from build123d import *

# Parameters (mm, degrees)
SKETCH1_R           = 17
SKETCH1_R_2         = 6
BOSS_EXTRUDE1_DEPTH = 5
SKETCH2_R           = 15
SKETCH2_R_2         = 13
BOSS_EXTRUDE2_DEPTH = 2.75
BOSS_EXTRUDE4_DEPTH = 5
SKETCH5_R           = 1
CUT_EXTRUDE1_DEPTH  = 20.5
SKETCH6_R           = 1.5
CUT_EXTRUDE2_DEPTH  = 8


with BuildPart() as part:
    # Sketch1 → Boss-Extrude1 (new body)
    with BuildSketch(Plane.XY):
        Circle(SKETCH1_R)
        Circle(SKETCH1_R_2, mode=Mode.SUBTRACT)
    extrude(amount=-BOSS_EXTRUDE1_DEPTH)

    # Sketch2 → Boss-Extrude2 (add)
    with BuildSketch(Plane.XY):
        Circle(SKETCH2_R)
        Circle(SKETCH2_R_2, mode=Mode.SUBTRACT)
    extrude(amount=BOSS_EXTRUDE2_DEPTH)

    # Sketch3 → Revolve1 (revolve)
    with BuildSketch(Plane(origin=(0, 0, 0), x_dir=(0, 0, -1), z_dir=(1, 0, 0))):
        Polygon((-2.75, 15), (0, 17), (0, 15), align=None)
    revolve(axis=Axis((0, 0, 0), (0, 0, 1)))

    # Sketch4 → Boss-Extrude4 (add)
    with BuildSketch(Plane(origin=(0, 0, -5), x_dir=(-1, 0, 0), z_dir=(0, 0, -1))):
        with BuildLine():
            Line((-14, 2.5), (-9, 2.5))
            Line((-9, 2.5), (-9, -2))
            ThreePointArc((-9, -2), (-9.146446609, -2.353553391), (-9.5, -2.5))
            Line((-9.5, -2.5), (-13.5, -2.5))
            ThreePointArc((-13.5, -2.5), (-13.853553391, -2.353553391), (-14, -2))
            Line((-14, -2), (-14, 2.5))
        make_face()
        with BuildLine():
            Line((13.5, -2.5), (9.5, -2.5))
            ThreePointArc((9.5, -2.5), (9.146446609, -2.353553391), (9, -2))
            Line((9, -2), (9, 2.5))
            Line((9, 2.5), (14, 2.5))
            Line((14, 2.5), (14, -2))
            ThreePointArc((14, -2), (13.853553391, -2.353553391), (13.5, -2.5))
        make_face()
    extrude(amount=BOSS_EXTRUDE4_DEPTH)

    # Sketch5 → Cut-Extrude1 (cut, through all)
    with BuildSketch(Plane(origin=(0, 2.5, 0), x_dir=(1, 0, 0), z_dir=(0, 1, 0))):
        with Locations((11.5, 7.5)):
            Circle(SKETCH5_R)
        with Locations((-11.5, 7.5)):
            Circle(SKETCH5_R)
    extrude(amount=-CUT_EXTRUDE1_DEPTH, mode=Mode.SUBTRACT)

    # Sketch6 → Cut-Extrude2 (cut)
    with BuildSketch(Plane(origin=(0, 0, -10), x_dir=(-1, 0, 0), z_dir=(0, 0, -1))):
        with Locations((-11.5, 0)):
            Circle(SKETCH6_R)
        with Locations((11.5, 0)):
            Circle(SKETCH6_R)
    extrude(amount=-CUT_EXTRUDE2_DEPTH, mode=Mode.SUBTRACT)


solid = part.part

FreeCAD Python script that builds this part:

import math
import FreeCAD as App
import Part
import Sketcher

V = App.Vector
Q = App.Units.Quantity

doc = App.newDocument("Part")
params = doc.addObject("Spreadsheet::Sheet", "Params")
for row, (alias, value) in enumerate([
    ("sketch1_diameter", "34 mm"),
    ("sketch1_diameter2", "12 mm"),
    ("pad1_length", "5 mm"),
    ("sketch2_diameter", "30 mm"),
    ("sketch2_diameter2", "26 mm"),
    ("pad2_length", "2.75 mm"),
    ("sketch3_width", "2 mm"),
    ("sketch3_height", "2.75 mm"),
    ("revolution_angle", "360 deg"),
    ("sketch4_radius", "0.5 mm"),
    ("sketch4_width", "5 mm"),
    ("sketch4_height", "4.5 mm"),
    ("pad3_length", "5 mm"),
    ("sketch5_diameter", "2 mm"),
    ("sketch6_diameter", "3 mm"),
    ("pocket2_length", "8 mm"),
], start=1):
    params.set(f"A{row}", alias)
    params.set(f"B{row}", "=" + value)
    params.setAlias(f"B{row}", alias)

body = doc.addObject("PartDesign::Body", "Body")

sketch1 = doc.addObject("Sketcher::SketchObject", "Sketch")
body.addObject(sketch1)
sketch1.AttachmentSupport = (doc.XY_Plane, [""])
sketch1.MapMode = "FlatFace"
sketch1.addGeometry(Part.Circle(V(0, 0, 0), V(0, 0, 1), 17), False)
sketch1.addGeometry(Part.Circle(V(0, 0, 0), V(0, 0, 1), 6), False)
sketch1.addConstraint(Sketcher.Constraint("Coincident", 0, 3, -1, 1))
sketch1.addConstraint(Sketcher.Constraint("Coincident", 1, 3, -1, 1))
sketch1.addConstraint(Sketcher.Constraint("Diameter", 0, Q("34 mm")))
sketch1.addConstraint(Sketcher.Constraint("Diameter", 1, Q("12 mm")))
sketch1.setExpression("Constraints[2]", "Params.sketch1_diameter")
sketch1.setExpression("Constraints[3]", "Params.sketch1_diameter2")
pad1 = doc.addObject("PartDesign::Pad", "Pad")
body.addObject(pad1)
pad1.Profile = sketch1
pad1.setExpression("Length", "Params.pad1_length")
pad1.Reversed = True

sketch2 = doc.addObject("Sketcher::SketchObject", "Sketch001")
body.addObject(sketch2)
sketch2.AttachmentSupport = (doc.XY_Plane, [""])
sketch2.MapMode = "FlatFace"
sketch2.addGeometry(Part.Circle(V(0, 0, 0), V(0, 0, 1), 15), False)
sketch2.addGeometry(Part.Circle(V(0, 0, 0), V(0, 0, 1), 13), False)
sketch2.addConstraint(Sketcher.Constraint("Coincident", 0, 3, -1, 1))
sketch2.addConstraint(Sketcher.Constraint("Coincident", 1, 3, -1, 1))
sketch2.addConstraint(Sketcher.Constraint("Diameter", 0, Q("30 mm")))
sketch2.addConstraint(Sketcher.Constraint("Diameter", 1, Q("26 mm")))
sketch2.setExpression("Constraints[2]", "Params.sketch2_diameter")
sketch2.setExpression("Constraints[3]", "Params.sketch2_diameter2")
pad2 = doc.addObject("PartDesign::Pad", "Pad001")
body.addObject(pad2)
pad2.Profile = sketch2
pad2.setExpression("Length", "Params.pad2_length")

sketch3 = doc.addObject("Sketcher::SketchObject", "Sketch002")
body.addObject(sketch3)
sketch3.AttachmentSupport = (doc.YZ_Plane, [""])
sketch3.MapMode = "FlatFace"
sketch3.addGeometry(Part.LineSegment(V(17, 0, 0), V(15, 2.8, 0)), False)
sketch3.addGeometry(Part.LineSegment(V(15, 2.8, 0), V(15, 0, 0)), False)
sketch3.addGeometry(Part.LineSegment(V(15, 0, 0), V(17, 0, 0)), False)
sketch3.addConstraint(Sketcher.Constraint("Coincident", 0, 2, 1, 1))
sketch3.addConstraint(Sketcher.Constraint("Coincident", 1, 2, 2, 1))
sketch3.addConstraint(Sketcher.Constraint("Coincident", 2, 2, 0, 1))
sketch3.addConstraint(Sketcher.Constraint("Vertical", 1))
sketch3.addConstraint(Sketcher.Constraint("Horizontal", 2))
sketch3.addConstraint(Sketcher.Constraint("PointOnObject", 1, 2, -1))
sketch3.addConstraint(Sketcher.Constraint("DistanceX", 2, 1, 2, 2, Q("2 mm")))
sketch3.addConstraint(Sketcher.Constraint("DistanceX", -1, 1, 0, 2, Q("15 mm")))
sketch3.addConstraint(Sketcher.Constraint("DistanceY", 1, 2, 1, 1, Q("2.75 mm")))
sketch3.setExpression("Constraints[6]", "Params.sketch3_width")
sketch3.setExpression("Constraints[8]", "Params.sketch3_height")
revolution = doc.addObject("PartDesign::Revolution", "Revolution")
body.addObject(revolution)
revolution.Profile = sketch3
revolution.ReferenceAxis = (sketch3, ["V_Axis"])
revolution.setExpression("Angle", "Params.revolution_angle")

sketch4 = doc.addObject("Sketcher::SketchObject", "Sketch003")
body.addObject(sketch4)
sketch4.AttachmentSupport = (doc.XY_Plane, [""])
sketch4.MapMode = "FlatFace"
sketch4.AttachmentOffset = App.Placement(V(0, 0, -5), App.Rotation())
sketch4.addGeometry(Part.LineSegment(V(9, 2.5, 0), V(14, 2.5, 0)), False)
sketch4.addGeometry(Part.LineSegment(V(14, 2.5, 0), V(14, -2, 0)), False)
sketch4.addGeometry(Part.ArcOfCircle(Part.Circle(V(13.5, -2, 0), V(0, 0, 1), 0.5), math.radians(-90), math.radians(0)), False)
sketch4.addGeometry(Part.LineSegment(V(13.5, -2.5, 0), V(9.5, -2.5, 0)), False)
sketch4.addGeometry(Part.ArcOfCircle(Part.Circle(V(9.5, -2, 0), V(0, 0, 1), 0.5), math.radians(180), math.radians(270)), False)
sketch4.addGeometry(Part.LineSegment(V(9, -2, 0), V(9, 2.5, 0)), False)
sketch4.addGeometry(Part.LineSegment(V(-9.5, -2.5, 0), V(-13.5, -2.5, 0)), False)
sketch4.addGeometry(Part.ArcOfCircle(Part.Circle(V(-13.5, -2, 0), V(0, 0, 1), 0.5), math.radians(180), math.radians(270)), False)
sketch4.addGeometry(Part.LineSegment(V(-14, -2, 0), V(-14, 2.5, 0)), False)
sketch4.addGeometry(Part.LineSegment(V(-14, 2.5, 0), V(-9, 2.5, 0)), False)
sketch4.addGeometry(Part.LineSegment(V(-9, 2.5, 0), V(-9, -2, 0)), False)
sketch4.addGeometry(Part.ArcOfCircle(Part.Circle(V(-9.5, -2, 0), V(0, 0, 1), 0.5), math.radians(-90), math.radians(0)), False)
sketch4.addConstraint(Sketcher.Constraint("Coincident", 0, 2, 1, 1))
sketch4.addConstraint(Sketcher.Constraint("Tangent", 1, 2, 2, 2))
sketch4.addConstraint(Sketcher.Constraint("Tangent", 2, 1, 3, 1))
sketch4.addConstraint(Sketcher.Constraint("Tangent", 3, 2, 4, 2))
sketch4.addConstraint(Sketcher.Constraint("Tangent", 4, 1, 5, 1))
sketch4.addConstraint(Sketcher.Constraint("Coincident", 5, 2, 0, 1))
sketch4.addConstraint(Sketcher.Constraint("Tangent", 6, 2, 7, 2))
sketch4.addConstraint(Sketcher.Constraint("Tangent", 7, 1, 8, 1))
sketch4.addConstraint(Sketcher.Constraint("Coincident", 8, 2, 9, 1))
sketch4.addConstraint(Sketcher.Constraint("Coincident", 9, 2, 10, 1))
sketch4.addConstraint(Sketcher.Constraint("Tangent", 10, 2, 11, 2))
sketch4.addConstraint(Sketcher.Constraint("Tangent", 11, 1, 6, 1))
sketch4.addConstraint(Sketcher.Constraint("Horizontal", 0))
sketch4.addConstraint(Sketcher.Constraint("Vertical", 1))
sketch4.addConstraint(Sketcher.Constraint("Horizontal", 3))
sketch4.addConstraint(Sketcher.Constraint("Vertical", 5))
sketch4.addConstraint(Sketcher.Constraint("Horizontal", 6))
sketch4.addConstraint(Sketcher.Constraint("Vertical", 8))
sketch4.addConstraint(Sketcher.Constraint("Horizontal", 9))
sketch4.addConstraint(Sketcher.Constraint("Vertical", 10))
sketch4.addConstraint(Sketcher.Constraint("Equal", 2, 4))
sketch4.addConstraint(Sketcher.Constraint("Equal", 4, 7))
sketch4.addConstraint(Sketcher.Constraint("Equal", 7, 11))
sketch4.addConstraint(Sketcher.Constraint("Symmetric", 2, 3, 7, 3, -2))
sketch4.addConstraint(Sketcher.Constraint("Symmetric", 5, 2, 9, 2, -2))
sketch4.addConstraint(Sketcher.Constraint("Radius", 2, Q("0.5 mm")))
sketch4.addConstraint(Sketcher.Constraint("DistanceX", 0, 1, 0, 2, Q("5 mm")))
sketch4.addConstraint(Sketcher.Constraint("DistanceY", 1, 2, 1, 1, Q("4.5 mm")))
sketch4.addConstraint(Sketcher.Constraint("DistanceY", 2, 3, -1, 1, Q("2 mm")))
sketch4.addConstraint(Sketcher.Constraint("DistanceX", -1, 1, 0, 2, Q("14 mm")))
sketch4.setExpression("Constraints[25]", "Params.sketch4_radius")
sketch4.setExpression("Constraints[26]", "Params.sketch4_width")
sketch4.setExpression("Constraints[27]", "Params.sketch4_height")
pad3 = doc.addObject("PartDesign::Pad", "Pad002")
body.addObject(pad3)
pad3.Profile = sketch4
pad3.setExpression("Length", "Params.pad3_length")
pad3.Reversed = True

sketch5 = doc.addObject("Sketcher::SketchObject", "Sketch004")
body.addObject(sketch5)
sketch5.AttachmentSupport = (doc.XZ_Plane, [""])
sketch5.MapMode = "FlatFace"
sketch5.AttachmentOffset = App.Placement(V(0, 0, -2.5), App.Rotation())
sketch5.addGeometry(Part.Circle(V(11.5, -7.5, 0), V(0, 0, 1), 1), False)
sketch5.addGeometry(Part.Circle(V(-11.5, -7.5, 0), V(0, 0, 1), 1), False)
sketch5.addConstraint(Sketcher.Constraint("Equal", 0, 1))
sketch5.addConstraint(Sketcher.Constraint("Symmetric", 0, 3, 1, 3, -2))
sketch5.addConstraint(Sketcher.Constraint("Diameter", 0, Q("2 mm")))
sketch5.addConstraint(Sketcher.Constraint("DistanceX", 1, 3, 0, 3, Q("23 mm")))
sketch5.addConstraint(Sketcher.Constraint("DistanceY", 0, 3, -1, 1, Q("7.5 mm")))
sketch5.setExpression("Constraints[2]", "Params.sketch5_diameter")
pocket1 = doc.addObject("PartDesign::Pocket", "Pocket")
body.addObject(pocket1)
pocket1.Profile = sketch5
pocket1.Type = "ThroughAll"
pocket1.Reversed = True

sketch6 = doc.addObject("Sketcher::SketchObject", "Sketch005")
body.addObject(sketch6)
sketch6.AttachmentSupport = (doc.XY_Plane, [""])
sketch6.MapMode = "FlatFace"
sketch6.AttachmentOffset = App.Placement(V(0, 0, -10), App.Rotation())
sketch6.addGeometry(Part.Circle(V(11.5, 0, 0), V(0, 0, 1), 1.5), False)
sketch6.addGeometry(Part.Circle(V(-11.5, 0, 0), V(0, 0, 1), 1.5), False)
sketch6.addConstraint(Sketcher.Constraint("Equal", 0, 1))
sketch6.addConstraint(Sketcher.Constraint("Symmetric", 0, 3, 1, 3, -1, 1))
sketch6.addConstraint(Sketcher.Constraint("PointOnObject", 0, 3, -1))
sketch6.addConstraint(Sketcher.Constraint("Diameter", 0, Q("3 mm")))
sketch6.addConstraint(Sketcher.Constraint("DistanceX", 1, 3, 0, 3, Q("23 mm")))
sketch6.setExpression("Constraints[3]", "Params.sketch6_diameter")
pocket2 = doc.addObject("PartDesign::Pocket", "Pocket001")
body.addObject(pocket2)
pocket2.Profile = sketch6
pocket2.setExpression("Length", "Params.pocket2_length")
pocket2.Reversed = True

doc.recompute()
